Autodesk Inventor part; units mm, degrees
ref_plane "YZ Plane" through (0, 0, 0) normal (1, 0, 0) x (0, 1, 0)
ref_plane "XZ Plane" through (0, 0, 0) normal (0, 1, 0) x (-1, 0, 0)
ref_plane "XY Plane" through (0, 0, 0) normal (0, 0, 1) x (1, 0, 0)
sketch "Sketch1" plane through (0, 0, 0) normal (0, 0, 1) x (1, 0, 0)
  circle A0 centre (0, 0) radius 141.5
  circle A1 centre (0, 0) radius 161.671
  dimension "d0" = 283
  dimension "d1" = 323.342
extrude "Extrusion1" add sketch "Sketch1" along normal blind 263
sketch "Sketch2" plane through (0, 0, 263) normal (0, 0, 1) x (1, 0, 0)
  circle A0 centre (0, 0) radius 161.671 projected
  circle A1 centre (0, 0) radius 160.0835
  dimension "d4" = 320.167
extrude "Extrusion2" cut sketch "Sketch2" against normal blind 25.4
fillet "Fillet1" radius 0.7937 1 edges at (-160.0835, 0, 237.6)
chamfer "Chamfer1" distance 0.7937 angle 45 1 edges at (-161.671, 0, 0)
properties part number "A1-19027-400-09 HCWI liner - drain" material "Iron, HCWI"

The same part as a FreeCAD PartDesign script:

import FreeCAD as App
import Part
import Sketcher

V = App.Vector
Q = App.Units.Quantity


def edges_at(feature, points):
    """Names of the edges that pass closest to the given points."""
    edges = feature.Shape.Edges
    near = lambda p: min(range(len(edges)), key=lambda i: edges[i].distToShape(Part.Vertex(*p))[0])
    return sorted({f"Edge{near(p) + 1}" for p in points})

doc = App.newDocument("Part")
body = doc.addObject("PartDesign::Body", "Body")

# Sketch on XY plane
sketch1 = body.newObject("Sketcher::SketchObject", "Sketch")
sketch1.AttachmentSupport = (doc.getObject("XY_Plane"), [""])
sketch1.MapMode = "FlatFace"
sketch1.addGeometry(Part.Circle(V(0, 0, 0), V(0, 0, 1), 162), False)
sketch1.addGeometry(Part.Circle(V(0, 0, 0), V(0, 0, 1), 142), False)
sketch1.addConstraint(Sketcher.Constraint("Coincident", 0, 3, -1, 1))
sketch1.addConstraint(Sketcher.Constraint("Coincident", 1, 3, -1, 1))
sketch1.addConstraint(Sketcher.Constraint("Diameter", 0, Q("12.73 in")))
sketch1.addConstraint(Sketcher.Constraint("Diameter", 1, 283.0))
pad1 = body.newObject("PartDesign::Pad", "Pad")
pad1.Profile = sketch1
pad1.Length = 263

# Sketch on XY plane
sketch2 = body.newObject("Sketcher::SketchObject", "Sketch001")
sketch2.AttachmentSupport = (doc.getObject("XY_Plane"), [""])
sketch2.MapMode = "FlatFace"
sketch2.AttachmentOffset = App.Placement(V(0, 0, 263), App.Rotation())
sketch2.addGeometry(Part.Circle(V(0, 0, 0), V(0, 0, 1), 162), False)
sketch2.addGeometry(Part.Circle(V(0, 0, 0), V(0, 0, 1), 160), False)
sketch2.addConstraint(Sketcher.Constraint("Coincident", 0, 3, -1, 1))
sketch2.addConstraint(Sketcher.Constraint("Coincident", 1, 3, -1, 1))
sketch2.addConstraint(Sketcher.Constraint("Diameter", 1, Q("12.605 in")))
sketch2.addConstraint(Sketcher.Constraint("Diameter", 0, Q("12.73 in")))
pocket1 = body.newObject("PartDesign::Pocket", "Pocket")
pocket1.Profile = sketch2
pocket1.Length = Q("1 in")
doc.recompute()

fillet = body.newObject("PartDesign::Fillet", "Fillet")
fillet.Base = (pocket1, edges_at(pocket1, [(-160.083, 0, 237.6)]))
fillet.Radius = Q("0.031248 in")
doc.recompute()

chamfer = body.newObject("PartDesign::Chamfer", "Chamfer")
chamfer.Base = (fillet, edges_at(fillet, [(-161.671, 0, 0)]))
chamfer.Size = Q("0.031248 in")

doc.recompute()
